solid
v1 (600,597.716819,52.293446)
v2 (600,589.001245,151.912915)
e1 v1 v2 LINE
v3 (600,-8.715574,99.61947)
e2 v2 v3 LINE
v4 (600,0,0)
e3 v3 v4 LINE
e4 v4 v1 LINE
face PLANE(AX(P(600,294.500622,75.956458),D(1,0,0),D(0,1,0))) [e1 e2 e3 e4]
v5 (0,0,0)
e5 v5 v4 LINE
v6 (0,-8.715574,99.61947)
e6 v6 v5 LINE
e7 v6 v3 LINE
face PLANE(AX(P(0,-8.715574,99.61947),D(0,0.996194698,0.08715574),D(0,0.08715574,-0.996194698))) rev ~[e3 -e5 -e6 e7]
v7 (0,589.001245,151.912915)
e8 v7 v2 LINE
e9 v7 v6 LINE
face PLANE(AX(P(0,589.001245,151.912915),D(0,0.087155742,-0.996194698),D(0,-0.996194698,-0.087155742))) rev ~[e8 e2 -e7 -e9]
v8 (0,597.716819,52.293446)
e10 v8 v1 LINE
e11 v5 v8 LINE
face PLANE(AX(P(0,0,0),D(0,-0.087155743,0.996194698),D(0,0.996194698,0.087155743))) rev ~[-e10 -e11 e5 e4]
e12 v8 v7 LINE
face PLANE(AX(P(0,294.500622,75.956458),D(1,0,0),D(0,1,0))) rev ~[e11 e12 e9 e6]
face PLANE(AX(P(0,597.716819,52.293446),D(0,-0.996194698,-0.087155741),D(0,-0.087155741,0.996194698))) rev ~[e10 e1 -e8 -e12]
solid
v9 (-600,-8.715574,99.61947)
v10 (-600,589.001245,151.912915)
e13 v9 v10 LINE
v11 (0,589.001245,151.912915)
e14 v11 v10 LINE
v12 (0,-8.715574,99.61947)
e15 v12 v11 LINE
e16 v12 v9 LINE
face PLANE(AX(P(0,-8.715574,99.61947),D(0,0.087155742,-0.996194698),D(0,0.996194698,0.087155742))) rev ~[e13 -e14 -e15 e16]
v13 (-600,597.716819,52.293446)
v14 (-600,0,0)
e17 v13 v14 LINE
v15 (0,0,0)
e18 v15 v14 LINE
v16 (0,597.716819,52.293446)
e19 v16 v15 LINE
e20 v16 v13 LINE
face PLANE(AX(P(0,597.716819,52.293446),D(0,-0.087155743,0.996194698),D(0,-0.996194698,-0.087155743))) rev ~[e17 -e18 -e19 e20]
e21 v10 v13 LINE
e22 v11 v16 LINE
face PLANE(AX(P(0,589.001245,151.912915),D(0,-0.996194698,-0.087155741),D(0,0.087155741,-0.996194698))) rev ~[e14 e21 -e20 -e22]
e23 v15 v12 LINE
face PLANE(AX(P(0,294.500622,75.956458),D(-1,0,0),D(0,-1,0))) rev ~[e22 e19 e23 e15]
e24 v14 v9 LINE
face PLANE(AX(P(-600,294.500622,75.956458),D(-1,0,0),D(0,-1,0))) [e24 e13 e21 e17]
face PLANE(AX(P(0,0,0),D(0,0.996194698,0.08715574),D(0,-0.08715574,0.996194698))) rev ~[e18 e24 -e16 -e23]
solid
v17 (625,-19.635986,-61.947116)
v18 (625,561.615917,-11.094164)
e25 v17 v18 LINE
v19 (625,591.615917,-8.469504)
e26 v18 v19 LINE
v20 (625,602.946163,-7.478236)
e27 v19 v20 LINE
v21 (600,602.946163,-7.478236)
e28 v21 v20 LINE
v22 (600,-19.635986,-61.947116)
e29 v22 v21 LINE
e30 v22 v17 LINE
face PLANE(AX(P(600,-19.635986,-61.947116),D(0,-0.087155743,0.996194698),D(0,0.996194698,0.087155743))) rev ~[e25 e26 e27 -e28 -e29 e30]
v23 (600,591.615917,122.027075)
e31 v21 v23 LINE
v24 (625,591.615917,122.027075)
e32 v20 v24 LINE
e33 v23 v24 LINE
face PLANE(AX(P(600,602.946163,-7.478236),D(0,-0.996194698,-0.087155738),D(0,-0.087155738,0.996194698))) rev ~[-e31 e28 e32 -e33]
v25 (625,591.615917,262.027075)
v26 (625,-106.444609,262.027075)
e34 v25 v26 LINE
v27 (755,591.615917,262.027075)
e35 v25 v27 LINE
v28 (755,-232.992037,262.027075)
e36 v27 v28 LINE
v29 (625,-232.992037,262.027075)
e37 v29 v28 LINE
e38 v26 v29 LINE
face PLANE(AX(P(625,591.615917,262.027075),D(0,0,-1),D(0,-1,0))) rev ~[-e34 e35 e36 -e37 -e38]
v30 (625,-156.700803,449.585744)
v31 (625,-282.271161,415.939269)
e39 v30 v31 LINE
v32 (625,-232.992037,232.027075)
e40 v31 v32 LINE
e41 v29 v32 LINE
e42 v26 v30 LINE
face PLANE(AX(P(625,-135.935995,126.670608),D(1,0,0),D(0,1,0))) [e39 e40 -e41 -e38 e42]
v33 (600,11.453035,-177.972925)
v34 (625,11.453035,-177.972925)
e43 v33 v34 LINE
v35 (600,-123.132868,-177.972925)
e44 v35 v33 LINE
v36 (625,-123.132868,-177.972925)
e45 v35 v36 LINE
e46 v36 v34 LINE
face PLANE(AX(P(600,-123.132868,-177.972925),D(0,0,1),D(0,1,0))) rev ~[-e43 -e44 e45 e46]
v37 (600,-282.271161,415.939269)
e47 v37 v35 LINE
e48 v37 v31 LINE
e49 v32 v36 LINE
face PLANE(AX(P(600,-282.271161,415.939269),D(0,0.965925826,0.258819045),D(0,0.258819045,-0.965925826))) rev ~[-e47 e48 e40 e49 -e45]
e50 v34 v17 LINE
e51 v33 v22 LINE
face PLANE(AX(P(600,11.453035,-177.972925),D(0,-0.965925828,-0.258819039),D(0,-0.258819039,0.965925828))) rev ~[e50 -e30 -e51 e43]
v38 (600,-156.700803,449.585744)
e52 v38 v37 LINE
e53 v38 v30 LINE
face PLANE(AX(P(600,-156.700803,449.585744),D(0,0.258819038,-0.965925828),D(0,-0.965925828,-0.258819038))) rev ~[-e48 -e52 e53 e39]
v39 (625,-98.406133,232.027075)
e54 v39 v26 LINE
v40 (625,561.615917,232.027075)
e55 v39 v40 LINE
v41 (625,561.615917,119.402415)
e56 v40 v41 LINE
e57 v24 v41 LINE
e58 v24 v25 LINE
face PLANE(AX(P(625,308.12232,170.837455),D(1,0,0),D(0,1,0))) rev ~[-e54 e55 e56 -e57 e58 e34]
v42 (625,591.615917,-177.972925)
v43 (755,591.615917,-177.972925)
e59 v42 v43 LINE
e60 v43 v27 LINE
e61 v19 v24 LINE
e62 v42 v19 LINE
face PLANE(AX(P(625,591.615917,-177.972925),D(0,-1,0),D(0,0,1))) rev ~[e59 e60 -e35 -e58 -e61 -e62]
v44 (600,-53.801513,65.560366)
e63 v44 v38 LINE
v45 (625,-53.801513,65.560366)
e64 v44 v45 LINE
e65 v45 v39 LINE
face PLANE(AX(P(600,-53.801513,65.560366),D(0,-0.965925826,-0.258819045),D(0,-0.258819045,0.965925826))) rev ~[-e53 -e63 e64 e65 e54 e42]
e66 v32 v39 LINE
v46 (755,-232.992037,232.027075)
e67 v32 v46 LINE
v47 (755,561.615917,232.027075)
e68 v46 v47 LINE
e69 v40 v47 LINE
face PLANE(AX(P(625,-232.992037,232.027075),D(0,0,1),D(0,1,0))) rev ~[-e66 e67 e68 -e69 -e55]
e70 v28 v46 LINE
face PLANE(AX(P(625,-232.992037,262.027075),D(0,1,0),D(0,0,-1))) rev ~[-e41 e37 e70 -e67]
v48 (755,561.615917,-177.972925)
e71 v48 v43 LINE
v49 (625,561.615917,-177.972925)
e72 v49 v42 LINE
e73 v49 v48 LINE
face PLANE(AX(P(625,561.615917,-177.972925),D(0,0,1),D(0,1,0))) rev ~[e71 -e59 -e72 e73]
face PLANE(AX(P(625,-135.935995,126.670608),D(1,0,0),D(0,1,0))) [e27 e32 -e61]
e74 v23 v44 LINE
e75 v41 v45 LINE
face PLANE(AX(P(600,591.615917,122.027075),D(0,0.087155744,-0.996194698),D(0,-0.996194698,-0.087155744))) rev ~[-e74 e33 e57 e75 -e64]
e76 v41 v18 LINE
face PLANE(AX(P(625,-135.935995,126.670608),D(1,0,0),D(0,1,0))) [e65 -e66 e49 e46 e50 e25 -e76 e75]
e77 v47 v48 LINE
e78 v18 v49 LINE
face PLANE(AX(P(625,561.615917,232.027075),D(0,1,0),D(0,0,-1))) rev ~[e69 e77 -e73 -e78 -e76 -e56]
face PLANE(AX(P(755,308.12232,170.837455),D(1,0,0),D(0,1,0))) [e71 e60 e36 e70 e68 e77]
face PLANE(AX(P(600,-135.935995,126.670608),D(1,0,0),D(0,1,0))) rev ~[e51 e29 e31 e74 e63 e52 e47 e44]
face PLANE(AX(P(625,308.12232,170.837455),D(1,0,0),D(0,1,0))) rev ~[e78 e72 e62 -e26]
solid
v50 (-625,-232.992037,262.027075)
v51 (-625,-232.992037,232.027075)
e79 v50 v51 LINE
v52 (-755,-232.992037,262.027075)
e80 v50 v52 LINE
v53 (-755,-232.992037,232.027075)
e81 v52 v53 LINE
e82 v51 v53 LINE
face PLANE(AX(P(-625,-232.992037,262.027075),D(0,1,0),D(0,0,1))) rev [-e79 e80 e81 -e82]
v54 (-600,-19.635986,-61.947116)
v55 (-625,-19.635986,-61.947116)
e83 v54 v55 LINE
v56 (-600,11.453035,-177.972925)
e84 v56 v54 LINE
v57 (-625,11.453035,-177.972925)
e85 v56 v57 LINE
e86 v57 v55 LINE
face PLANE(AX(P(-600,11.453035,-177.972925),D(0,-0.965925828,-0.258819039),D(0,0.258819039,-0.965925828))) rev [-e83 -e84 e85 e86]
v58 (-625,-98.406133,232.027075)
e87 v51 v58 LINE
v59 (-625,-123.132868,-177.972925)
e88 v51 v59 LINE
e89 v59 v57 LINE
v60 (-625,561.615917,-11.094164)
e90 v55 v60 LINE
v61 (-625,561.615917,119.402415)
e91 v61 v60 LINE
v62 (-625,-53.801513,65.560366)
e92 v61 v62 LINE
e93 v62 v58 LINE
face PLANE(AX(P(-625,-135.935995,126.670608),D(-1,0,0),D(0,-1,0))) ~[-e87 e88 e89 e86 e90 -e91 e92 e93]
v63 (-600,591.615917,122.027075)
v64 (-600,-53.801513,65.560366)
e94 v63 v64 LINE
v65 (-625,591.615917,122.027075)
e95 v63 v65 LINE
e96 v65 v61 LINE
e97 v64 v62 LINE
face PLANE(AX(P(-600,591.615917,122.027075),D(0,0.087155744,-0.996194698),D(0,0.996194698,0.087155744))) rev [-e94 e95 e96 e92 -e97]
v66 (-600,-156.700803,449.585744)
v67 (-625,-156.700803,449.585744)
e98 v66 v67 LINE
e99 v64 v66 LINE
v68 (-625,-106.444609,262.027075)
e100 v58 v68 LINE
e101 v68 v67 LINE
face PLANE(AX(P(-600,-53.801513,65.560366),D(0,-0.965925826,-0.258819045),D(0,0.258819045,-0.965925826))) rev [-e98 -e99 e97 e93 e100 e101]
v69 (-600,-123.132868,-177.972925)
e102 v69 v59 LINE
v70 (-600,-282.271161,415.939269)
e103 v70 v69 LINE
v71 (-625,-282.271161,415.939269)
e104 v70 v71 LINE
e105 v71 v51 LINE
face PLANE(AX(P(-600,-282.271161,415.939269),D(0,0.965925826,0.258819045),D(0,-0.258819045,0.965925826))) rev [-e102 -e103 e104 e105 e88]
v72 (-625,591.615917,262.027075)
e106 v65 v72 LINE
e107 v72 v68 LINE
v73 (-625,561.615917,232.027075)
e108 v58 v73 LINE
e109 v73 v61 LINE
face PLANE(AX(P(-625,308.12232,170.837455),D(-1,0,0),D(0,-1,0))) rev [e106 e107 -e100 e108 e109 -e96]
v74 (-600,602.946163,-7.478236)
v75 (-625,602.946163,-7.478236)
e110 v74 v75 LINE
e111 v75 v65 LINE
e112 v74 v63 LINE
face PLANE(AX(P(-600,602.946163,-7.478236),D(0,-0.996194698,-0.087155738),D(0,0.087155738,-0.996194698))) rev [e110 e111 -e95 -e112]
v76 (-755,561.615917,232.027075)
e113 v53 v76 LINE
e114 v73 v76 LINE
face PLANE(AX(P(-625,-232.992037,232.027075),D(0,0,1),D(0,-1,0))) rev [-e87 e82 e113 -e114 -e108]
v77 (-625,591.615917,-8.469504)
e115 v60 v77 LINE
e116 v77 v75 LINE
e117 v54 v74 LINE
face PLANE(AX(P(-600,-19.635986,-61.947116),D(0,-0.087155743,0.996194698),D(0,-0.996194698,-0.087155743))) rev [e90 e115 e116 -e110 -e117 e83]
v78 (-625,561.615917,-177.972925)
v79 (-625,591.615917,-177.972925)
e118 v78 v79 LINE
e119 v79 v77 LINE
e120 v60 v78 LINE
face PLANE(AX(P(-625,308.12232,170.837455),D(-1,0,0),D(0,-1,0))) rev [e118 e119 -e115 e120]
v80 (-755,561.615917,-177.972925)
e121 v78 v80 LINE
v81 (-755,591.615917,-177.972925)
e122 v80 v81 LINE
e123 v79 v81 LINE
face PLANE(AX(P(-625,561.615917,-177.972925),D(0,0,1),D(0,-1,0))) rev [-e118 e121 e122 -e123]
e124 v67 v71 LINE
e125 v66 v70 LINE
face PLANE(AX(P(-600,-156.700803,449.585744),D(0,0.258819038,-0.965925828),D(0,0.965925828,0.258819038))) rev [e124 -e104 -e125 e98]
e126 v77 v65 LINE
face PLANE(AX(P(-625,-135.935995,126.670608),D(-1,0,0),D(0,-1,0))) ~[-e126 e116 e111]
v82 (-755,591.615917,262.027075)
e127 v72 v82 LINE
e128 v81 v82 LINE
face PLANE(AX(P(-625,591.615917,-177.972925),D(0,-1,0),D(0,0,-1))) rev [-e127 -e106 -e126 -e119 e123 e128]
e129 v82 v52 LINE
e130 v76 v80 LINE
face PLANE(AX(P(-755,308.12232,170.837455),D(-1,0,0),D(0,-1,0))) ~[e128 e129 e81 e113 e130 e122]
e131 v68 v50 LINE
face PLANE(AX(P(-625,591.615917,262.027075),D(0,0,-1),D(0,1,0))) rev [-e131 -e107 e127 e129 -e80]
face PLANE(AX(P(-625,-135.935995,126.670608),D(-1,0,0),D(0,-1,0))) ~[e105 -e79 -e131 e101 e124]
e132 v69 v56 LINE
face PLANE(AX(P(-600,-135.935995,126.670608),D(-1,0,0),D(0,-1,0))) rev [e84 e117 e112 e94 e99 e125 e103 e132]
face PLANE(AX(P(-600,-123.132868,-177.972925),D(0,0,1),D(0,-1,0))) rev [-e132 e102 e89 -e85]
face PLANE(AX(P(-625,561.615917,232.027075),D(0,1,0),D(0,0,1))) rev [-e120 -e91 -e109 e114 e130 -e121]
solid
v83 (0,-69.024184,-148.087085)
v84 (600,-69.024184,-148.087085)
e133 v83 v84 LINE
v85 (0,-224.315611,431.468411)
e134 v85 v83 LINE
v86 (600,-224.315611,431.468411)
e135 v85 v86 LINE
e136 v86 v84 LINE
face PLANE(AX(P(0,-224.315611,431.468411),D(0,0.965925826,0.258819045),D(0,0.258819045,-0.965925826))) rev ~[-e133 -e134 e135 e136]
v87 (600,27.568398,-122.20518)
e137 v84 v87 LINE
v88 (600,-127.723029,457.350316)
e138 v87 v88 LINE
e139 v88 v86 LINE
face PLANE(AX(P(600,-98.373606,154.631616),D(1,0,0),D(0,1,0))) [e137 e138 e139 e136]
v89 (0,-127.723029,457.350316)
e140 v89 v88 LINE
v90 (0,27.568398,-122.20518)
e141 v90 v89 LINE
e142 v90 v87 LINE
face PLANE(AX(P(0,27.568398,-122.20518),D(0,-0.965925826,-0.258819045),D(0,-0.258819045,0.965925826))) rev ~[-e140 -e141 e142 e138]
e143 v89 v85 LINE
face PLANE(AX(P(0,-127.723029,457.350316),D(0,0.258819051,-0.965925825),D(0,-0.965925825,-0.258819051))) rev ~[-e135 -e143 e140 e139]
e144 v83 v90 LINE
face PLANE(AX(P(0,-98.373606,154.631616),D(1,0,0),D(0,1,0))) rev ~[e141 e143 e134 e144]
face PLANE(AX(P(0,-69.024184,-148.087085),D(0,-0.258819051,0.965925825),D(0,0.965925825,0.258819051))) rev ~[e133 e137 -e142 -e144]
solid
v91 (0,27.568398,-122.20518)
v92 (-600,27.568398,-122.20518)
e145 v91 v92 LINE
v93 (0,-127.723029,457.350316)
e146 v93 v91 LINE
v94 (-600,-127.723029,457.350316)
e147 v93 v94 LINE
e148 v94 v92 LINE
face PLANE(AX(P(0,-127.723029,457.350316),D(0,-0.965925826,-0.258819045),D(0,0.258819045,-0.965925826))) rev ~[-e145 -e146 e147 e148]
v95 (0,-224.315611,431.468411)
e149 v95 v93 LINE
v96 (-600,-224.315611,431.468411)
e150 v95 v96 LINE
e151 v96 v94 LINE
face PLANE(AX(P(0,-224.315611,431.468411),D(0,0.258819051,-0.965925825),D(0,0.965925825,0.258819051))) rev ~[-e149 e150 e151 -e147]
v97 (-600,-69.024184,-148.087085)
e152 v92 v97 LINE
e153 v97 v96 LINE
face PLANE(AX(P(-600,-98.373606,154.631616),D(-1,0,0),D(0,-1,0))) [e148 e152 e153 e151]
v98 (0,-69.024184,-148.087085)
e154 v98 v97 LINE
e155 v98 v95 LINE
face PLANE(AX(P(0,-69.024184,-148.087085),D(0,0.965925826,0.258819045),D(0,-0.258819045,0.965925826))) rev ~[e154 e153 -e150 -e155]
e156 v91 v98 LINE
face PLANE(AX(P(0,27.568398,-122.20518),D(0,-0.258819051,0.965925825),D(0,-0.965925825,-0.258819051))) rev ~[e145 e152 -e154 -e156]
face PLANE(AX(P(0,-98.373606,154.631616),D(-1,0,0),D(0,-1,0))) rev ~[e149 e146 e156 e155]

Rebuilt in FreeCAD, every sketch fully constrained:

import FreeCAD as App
import Part
import Sketcher
from FreeCAD import Vector
Q = App.Units.Quantity

doc = App.newDocument("Part")
body = doc.addObject("PartDesign::Body", "Body")
body.AllowCompound = True

sketch1 = body.newObject("Sketcher::SketchObject", "Sketch")
sketch1.AttachmentSupport = (doc.getObject("YZ_Plane"), [""])
sketch1.MapMode = "FlatFace"
sketch1.addGeometry(Part.LineSegment(Vector(-9, 100, 0), Vector(0, 0, 0)), False)
sketch1.addGeometry(Part.LineSegment(Vector(0, 0, 0), Vector(598, 52, 0)), False)
sketch1.addGeometry(Part.LineSegment(Vector(598, 52, 0), Vector(589, 152, 0)), False)
sketch1.addGeometry(Part.LineSegment(Vector(589, 152, 0), Vector(-9, 100, 0)), False)
sketch1.addGeometry(Part.LineSegment(Vector(28, -122, 0), Vector(-128, 457, 0)), False)
sketch1.addGeometry(Part.LineSegment(Vector(-128, 457, 0), Vector(-224, 431, 0)), False)
sketch1.addGeometry(Part.LineSegment(Vector(-224, 431, 0), Vector(-69, -148, 0)), False)
sketch1.addGeometry(Part.LineSegment(Vector(-69, -148, 0), Vector(28, -122, 0)), False)
sketch1.addConstraint(Sketcher.Constraint("Coincident", 0, 2, 1, 1))
sketch1.addConstraint(Sketcher.Constraint("Coincident", 1, 2, 2, 1))
sketch1.addConstraint(Sketcher.Constraint("Coincident", 2, 2, 3, 1))
sketch1.addConstraint(Sketcher.Constraint("Coincident", 3, 2, 0, 1))
sketch1.addConstraint(Sketcher.Constraint("Coincident", 4, 2, 5, 1))
sketch1.addConstraint(Sketcher.Constraint("Coincident", 5, 2, 6, 1))
sketch1.addConstraint(Sketcher.Constraint("Coincident", 6, 2, 7, 1))
sketch1.addConstraint(Sketcher.Constraint("Coincident", 7, 2, 4, 1))
sketch1.addConstraint(Sketcher.Constraint("Coincident", 0, 2, -1, 1))
sketch1.addConstraint(Sketcher.Constraint("Perpendicular", 0, 1))
sketch1.addConstraint(Sketcher.Constraint("Perpendicular", 1, 2))
sketch1.addConstraint(Sketcher.Constraint("Perpendicular", 2, 3))
sketch1.addConstraint(Sketcher.Constraint("Perpendicular", 4, 5))
sketch1.addConstraint(Sketcher.Constraint("Perpendicular", 5, 6))
sketch1.addConstraint(Sketcher.Constraint("Perpendicular", 6, 7))
sketch1.addConstraint(Sketcher.Constraint("Equal", 3, 4))
sketch1.addConstraint(Sketcher.Constraint("Equal", 2, 5))
sketch1.addConstraint(Sketcher.Constraint("Angle", 0, Q("-85 deg")))
sketch1.addConstraint(Sketcher.Constraint("Angle", 4, Q("105 deg")))
sketch1.addConstraint(Sketcher.Constraint("Distance", 0, Q("100 mm")))
sketch1.addConstraint(Sketcher.Constraint("Distance", 1, Q("600 mm")))
sketch1.addConstraint(Sketcher.Constraint("DistanceY", 2, 2, 4, 2, Q("305.437401 mm")))
sketch1.addConstraint(Sketcher.Constraint("DistanceX", 4, 2, -1, 1, Q("127.723029 mm")))
pad1 = body.newObject("PartDesign::Pad", "Pad")
pad1.Profile = sketch1
pad1.Length = 600
body2 = doc.addObject("PartDesign::Body", "Body001")
body2.AllowCompound = True

sketch2 = body2.newObject("Sketcher::SketchObject", "Sketch001")
sketch2.AttachmentSupport = (doc.getObject("YZ_Plane001"), [""])
sketch2.MapMode = "FlatFace"
sketch2.addGeometry(Part.LineSegment(Vector(598, 52, 0), Vector(0, 0, 0)), False)
sketch2.addGeometry(Part.LineSegment(Vector(0, 0, 0), Vector(-9, 100, 0)), False)
sketch2.addGeometry(Part.LineSegment(Vector(-9, 100, 0), Vector(589, 152, 0)), False)
sketch2.addGeometry(Part.LineSegment(Vector(589, 152, 0), Vector(598, 52, 0)), False)
sketch2.addGeometry(Part.LineSegment(Vector(-224, 431, 0), Vector(-128, 457, 0)), False)
sketch2.addGeometry(Part.LineSegment(Vector(-128, 457, 0), Vector(28, -122, 0)), False)
sketch2.addGeometry(Part.LineSegment(Vector(28, -122, 0), Vector(-69, -148, 0)), False)
sketch2.addGeometry(Part.LineSegment(Vector(-69, -148, 0), Vector(-224, 431, 0)), False)
sketch2.addConstraint(Sketcher.Constraint("Coincident", 0, 2, 1, 1))
sketch2.addConstraint(Sketcher.Constraint("Coincident", 1, 2, 2, 1))
sketch2.addConstraint(Sketcher.Constraint("Coincident", 2, 2, 3, 1))
sketch2.addConstraint(Sketcher.Constraint("Coincident", 3, 2, 0, 1))
sketch2.addConstraint(Sketcher.Constraint("Coincident", 4, 2, 5, 1))
sketch2.addConstraint(Sketcher.Constraint("Coincident", 5, 2, 6, 1))
sketch2.addConstraint(Sketcher.Constraint("Coincident", 6, 2, 7, 1))
sketch2.addConstraint(Sketcher.Constraint("Coincident", 7, 2, 4, 1))
sketch2.addConstraint(Sketcher.Constraint("Coincident", 0, 2, -1, 1))
sketch2.addConstraint(Sketcher.Constraint("Perpendicular", 0, 1))
sketch2.addConstraint(Sketcher.Constraint("Perpendicular", 1, 2))
sketch2.addConstraint(Sketcher.Constraint("Perpendicular", 2, 3))
sketch2.addConstraint(Sketcher.Constraint("Perpendicular", 4, 5))
sketch2.addConstraint(Sketcher.Constraint("Perpendicular", 5, 6))
sketch2.addConstraint(Sketcher.Constraint("Perpendicular", 6, 7))
sketch2.addConstraint(Sketcher.Constraint("Equal", 3, 4))
sketch2.addConstraint(Sketcher.Constraint("Equal", 2, 5))
sketch2.addConstraint(Sketcher.Constraint("Angle", 0, Q("-175 deg")))
sketch2.addConstraint(Sketcher.Constraint("Angle", 4, Q("15 deg")))
sketch2.addConstraint(Sketcher.Constraint("Distance", 0, Q("600 mm")))
sketch2.addConstraint(Sketcher.Constraint("Distance", 1, Q("100 mm")))
sketch2.addConstraint(Sketcher.Constraint("DistanceY", 2, 2, 4, 2, Q("305.437401 mm")))
sketch2.addConstraint(Sketcher.Constraint("DistanceX", 4, 2, -1, 1, Q("127.723029 mm")))
pad2 = body2.newObject("PartDesign::Pad", "Pad001")
pad2.Profile = sketch2
pad2.Length = 600
pad2.Reversed = True
body3 = doc.addObject("PartDesign::Body", "Body002")

sketch3 = body3.newObject("Sketcher::SketchObject", "Sketch002")
sketch3.AttachmentSupport = (doc.getObject("YZ_Plane002"), [""])
sketch3.MapMode = "FlatFace"
sketch3.AttachmentOffset = App.Placement(Vector(0, 0, 600), App.Rotation())
sketch3.addGeometry(Part.LineSegment(Vector(-54, 66, 0), Vector(-157, 450, 0)), False)
sketch3.addGeometry(Part.LineSegment(Vector(-157, 450, 0), Vector(-282, 416, 0)), False)
sketch3.addGeometry(Part.LineSegment(Vector(-282, 416, 0), Vector(-123, -178, 0)), False)
sketch3.addGeometry(Part.LineSegment(Vector(-123, -178, 0), Vector(11, -178, 0)), False)
sketch3.addGeometry(Part.LineSegment(Vector(11, -178, 0), Vector(-20, -62, 0)), False)
sketch3.addGeometry(Part.LineSegment(Vector(-20, -62, 0), Vector(603, -7, 0)), False)
sketch3.addGeometry(Part.LineSegment(Vector(603, -7, 0), Vector(592, 122, 0)), False)
sketch3.addGeometry(Part.LineSegment(Vector(592, 122, 0), Vector(-54, 66, 0)), False)
sketch3.addConstraint(Sketcher.Constraint("Coincident", 0, 2, 1, 1))
sketch3.addConstraint(Sketcher.Constraint("Coincident", 1, 2, 2, 1))
sketch3.addConstraint(Sketcher.Constraint("Coincident", 2, 2, 3, 1))
sketch3.addConstraint(Sketcher.Constraint("Coincident", 3, 2, 4, 1))
sketch3.addConstraint(Sketcher.Constraint("Coincident", 4, 2, 5, 1))
sketch3.addConstraint(Sketcher.Constraint("Coincident", 5, 2, 6, 1))
sketch3.addConstraint(Sketcher.Constraint("Coincident", 6, 2, 7, 1))
sketch3.addConstraint(Sketcher.Constraint("Coincident", 7, 2, 0, 1))
sketch3.addConstraint(Sketcher.Constraint("Horizontal", 3))
sketch3.addConstraint(Sketcher.Constraint("Perpendicular", 0, 1))
sketch3.addConstraint(Sketcher.Constraint("Perpendicular", 1, 2))
sketch3.addConstraint(Sketcher.Constraint("Parallel", 2, 4))
sketch3.addConstraint(Sketcher.Constraint("Perpendicular", 5, 6))
sketch3.addConstraint(Sketcher.Constraint("Perpendicular", 6, 7))
sketch3.addConstraint(Sketcher.Constraint("Equal", 1, 6))
sketch3.addConstraint(Sketcher.Constraint("Angle", 0, Q("105 deg")))
sketch3.addConstraint(Sketcher.Constraint("Angle", 5, Q("5 deg")))
sketch3.addConstraint(Sketcher.Constraint("Distance", 1, Q("130 mm")))
sketch3.addConstraint(Sketcher.Constraint("DistanceY", 3, 2, 6, 2, Q("300 mm")))
sketch3.addConstraint(Sketcher.Constraint("Distance", 5, Q("624.960312 mm")))
sketch3.addConstraint(Sketcher.Constraint("Distance", 7, Q("647.88282 mm")))
sketch3.addConstraint(Sketcher.Constraint("DistanceX", 1, 2, -1, 1, Q("282.271161 mm")))
sketch3.addConstraint(Sketcher.Constraint("DistanceY", -1, 1, 1, 2, Q("415.939269 mm")))
sketch3.addConstraint(Sketcher.Constraint("DistanceX", 2, 2, -1, 1, Q("123.132868 mm")))
pad3 = body3.newObject("PartDesign::Pad", "Pad002")
pad3.Profile = sketch3
pad3.Length = 25

sketch4 = body3.newObject("Sketcher::SketchObject", "Sketch003")
sketch4.AttachmentSupport = (doc.getObject("YZ_Plane002"), [""])
sketch4.MapMode = "FlatFace"
sketch4.AttachmentOffset = App.Placement(Vector(0, 0, 625), App.Rotation())
sketch4.addGeometry(Part.LineSegment(Vector(-233, 262, 0), Vector(-233, 232, 0)), False)
sketch4.addGeometry(Part.LineSegment(Vector(-233, 232, 0), Vector(562, 232, 0)), False)
sketch4.addGeometry(Part.LineSegment(Vector(562, 232, 0), Vector(562, -178, 0)), False)
sketch4.addGeometry(Part.LineSegment(Vector(562, -178, 0), Vector(592, -178, 0)), False)
sketch4.addGeometry(Part.LineSegment(Vector(592, -178, 0), Vector(592, 262, 0)), False)
sketch4.addGeometry(Part.LineSegment(Vector(592, 262, 0), Vector(-233, 262, 0)), False)
sketch4.addConstraint(Sketcher.Constraint("Coincident", 0, 2, 1, 1))
sketch4.addConstraint(Sketcher.Constraint("Coincident", 1, 2, 2, 1))
sketch4.addConstraint(Sketcher.Constraint("Coincident", 2, 2, 3, 1))
sketch4.addConstraint(Sketcher.Constraint("Coincident", 3, 2, 4, 1))
sketch4.addConstraint(Sketcher.Constraint("Coincident", 4, 2, 5, 1))
sketch4.addConstraint(Sketcher.Constraint("Coincident", 5, 2, 0, 1))
sketch4.addConstraint(Sketcher.Constraint("Vertical", 0))
sketch4.addConstraint(Sketcher.Constraint("Horizontal", 1))
sketch4.addConstraint(Sketcher.Constraint("Vertical", 2))
sketch4.addConstraint(Sketcher.Constraint("Horizontal", 3))
sketch4.addConstraint(Sketcher.Constraint("Vertical", 4))
sketch4.addConstraint(Sketcher.Constraint("Horizontal", 5))
sketch4.addConstraint(Sketcher.Constraint("Equal", 3, 0))
sketch4.addConstraint(Sketcher.Constraint("DistanceX", 3, 1, 3, 2, Q("30 mm")))
sketch4.addConstraint(Sketcher.Constraint("DistanceY", 2, 2, 2, 1, Q("410 mm")))
sketch4.addConstraint(Sketcher.Constraint("DistanceX", 1, 1, 1, 2, Q("794.607954 mm")))
sketch4.addConstraint(Sketcher.Constraint("DistanceX", 0, 2, -1, 1, Q("232.992037 mm")))
sketch4.addConstraint(Sketcher.Constraint("DistanceY", -1, 1, 0, 2, Q("232.027075 mm")))
pad4 = body3.newObject("PartDesign::Pad", "Pad003")
pad4.Profile = sketch4
pad4.Length = 130
body4 = doc.addObject("PartDesign::Body", "Body003")
doc.recompute()

mirroring = doc.addObject("Part::Mirroring", "Mirroring")
mirroring.Source = body3
mirroring.Base = Vector(0, 0, 0)
mirroring.Normal = Vector(1, 0, 0)
body4.BaseFeature = mirroring
doc.recompute()
mirroring.Visibility = False

doc.recompute()
